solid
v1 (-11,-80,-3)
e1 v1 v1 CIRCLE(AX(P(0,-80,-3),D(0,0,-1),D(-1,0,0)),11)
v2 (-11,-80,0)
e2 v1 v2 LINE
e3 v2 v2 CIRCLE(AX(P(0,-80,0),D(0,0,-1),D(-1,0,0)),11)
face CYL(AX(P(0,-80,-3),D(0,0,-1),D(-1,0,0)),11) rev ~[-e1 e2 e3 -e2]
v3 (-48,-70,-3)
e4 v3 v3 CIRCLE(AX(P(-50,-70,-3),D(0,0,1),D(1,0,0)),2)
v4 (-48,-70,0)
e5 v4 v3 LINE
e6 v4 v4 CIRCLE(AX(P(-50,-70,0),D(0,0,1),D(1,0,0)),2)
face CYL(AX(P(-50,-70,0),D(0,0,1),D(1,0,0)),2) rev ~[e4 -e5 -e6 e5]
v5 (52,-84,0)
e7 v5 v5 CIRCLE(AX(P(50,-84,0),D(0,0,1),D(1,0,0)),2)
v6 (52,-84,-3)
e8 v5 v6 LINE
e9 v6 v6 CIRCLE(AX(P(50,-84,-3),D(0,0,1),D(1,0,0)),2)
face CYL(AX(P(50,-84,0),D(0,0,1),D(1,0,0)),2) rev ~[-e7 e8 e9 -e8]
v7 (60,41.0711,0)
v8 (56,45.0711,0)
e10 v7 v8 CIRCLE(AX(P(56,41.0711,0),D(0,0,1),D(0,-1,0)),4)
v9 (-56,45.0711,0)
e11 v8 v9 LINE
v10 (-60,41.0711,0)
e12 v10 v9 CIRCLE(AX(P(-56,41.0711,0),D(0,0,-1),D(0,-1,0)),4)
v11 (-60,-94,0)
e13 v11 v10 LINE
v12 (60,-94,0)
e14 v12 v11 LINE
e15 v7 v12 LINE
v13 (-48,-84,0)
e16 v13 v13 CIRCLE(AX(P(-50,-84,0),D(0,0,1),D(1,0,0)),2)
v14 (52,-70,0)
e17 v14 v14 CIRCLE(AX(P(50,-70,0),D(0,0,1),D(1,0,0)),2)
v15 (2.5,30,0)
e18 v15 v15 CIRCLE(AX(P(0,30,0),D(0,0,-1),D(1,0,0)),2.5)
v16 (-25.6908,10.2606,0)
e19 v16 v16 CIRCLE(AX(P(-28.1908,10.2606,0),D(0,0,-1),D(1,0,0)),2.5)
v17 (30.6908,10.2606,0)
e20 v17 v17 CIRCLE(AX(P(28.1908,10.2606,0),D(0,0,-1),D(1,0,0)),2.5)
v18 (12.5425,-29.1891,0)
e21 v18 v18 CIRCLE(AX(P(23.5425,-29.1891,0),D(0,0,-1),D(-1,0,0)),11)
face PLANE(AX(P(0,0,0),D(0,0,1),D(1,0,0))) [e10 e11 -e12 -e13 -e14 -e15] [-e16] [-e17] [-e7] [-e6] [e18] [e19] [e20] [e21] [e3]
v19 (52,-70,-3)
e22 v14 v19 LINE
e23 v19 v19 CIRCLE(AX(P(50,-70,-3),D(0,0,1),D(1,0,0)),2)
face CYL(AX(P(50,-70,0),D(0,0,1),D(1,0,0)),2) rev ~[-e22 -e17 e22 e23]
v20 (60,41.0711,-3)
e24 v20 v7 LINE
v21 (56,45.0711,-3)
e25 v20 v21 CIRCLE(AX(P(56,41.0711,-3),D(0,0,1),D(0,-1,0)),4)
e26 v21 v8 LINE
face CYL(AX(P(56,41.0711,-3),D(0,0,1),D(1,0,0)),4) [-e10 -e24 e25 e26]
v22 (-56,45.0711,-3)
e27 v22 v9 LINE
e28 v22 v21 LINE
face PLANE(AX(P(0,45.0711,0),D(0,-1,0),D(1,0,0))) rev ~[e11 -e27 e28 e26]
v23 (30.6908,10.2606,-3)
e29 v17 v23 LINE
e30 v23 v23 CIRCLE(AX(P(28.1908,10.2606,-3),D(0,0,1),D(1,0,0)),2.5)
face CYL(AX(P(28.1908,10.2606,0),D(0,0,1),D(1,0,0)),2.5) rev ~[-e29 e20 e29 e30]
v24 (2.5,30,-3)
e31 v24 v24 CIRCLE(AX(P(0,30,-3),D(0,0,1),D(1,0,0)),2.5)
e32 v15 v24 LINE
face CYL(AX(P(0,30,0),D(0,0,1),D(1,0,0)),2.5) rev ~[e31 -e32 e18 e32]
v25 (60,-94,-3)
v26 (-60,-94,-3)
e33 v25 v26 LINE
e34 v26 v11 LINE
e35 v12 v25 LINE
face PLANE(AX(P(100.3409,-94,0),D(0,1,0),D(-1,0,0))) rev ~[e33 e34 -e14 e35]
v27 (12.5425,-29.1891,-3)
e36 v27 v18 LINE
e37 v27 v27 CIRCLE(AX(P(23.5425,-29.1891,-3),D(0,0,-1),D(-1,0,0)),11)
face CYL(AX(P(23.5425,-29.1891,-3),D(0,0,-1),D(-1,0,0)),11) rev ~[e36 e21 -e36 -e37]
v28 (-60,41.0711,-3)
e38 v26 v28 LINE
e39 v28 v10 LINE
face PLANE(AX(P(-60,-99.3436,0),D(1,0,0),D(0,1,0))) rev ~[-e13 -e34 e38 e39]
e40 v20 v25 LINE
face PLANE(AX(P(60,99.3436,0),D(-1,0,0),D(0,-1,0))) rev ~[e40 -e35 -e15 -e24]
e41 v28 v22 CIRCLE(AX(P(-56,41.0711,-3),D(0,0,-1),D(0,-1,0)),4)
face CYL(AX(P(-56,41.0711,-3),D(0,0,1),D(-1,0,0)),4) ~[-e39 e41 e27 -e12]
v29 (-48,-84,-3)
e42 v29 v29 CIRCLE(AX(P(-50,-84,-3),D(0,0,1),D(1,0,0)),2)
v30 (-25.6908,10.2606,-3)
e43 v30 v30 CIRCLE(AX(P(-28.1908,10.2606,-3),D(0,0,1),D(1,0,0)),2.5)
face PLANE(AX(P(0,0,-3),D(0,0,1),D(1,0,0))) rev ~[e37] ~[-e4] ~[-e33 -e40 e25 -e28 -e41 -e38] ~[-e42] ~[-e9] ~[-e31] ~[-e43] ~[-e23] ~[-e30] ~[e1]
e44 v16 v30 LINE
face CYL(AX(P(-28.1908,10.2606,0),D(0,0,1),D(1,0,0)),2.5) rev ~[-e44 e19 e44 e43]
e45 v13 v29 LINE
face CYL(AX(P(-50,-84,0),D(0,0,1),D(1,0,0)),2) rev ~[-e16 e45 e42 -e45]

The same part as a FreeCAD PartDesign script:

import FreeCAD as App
import Part
import Sketcher


def edges_at(feature, points):
    """Names of the edges that pass closest to the given points."""
    edges = feature.Shape.Edges
    near = lambda p: min(range(len(edges)), key=lambda i: edges[i].distToShape(Part.Vertex(*p))[0])
    return sorted({f"Edge{near(p) + 1}" for p in points})

doc = App.newDocument("Part")
body = doc.addObject("PartDesign::Body", "Body")

sketch1 = body.newObject("Sketcher::SketchObject", "Sketch")
sketch1.AttachmentSupport = (doc.getObject("XY_Plane"), [""])
sketch1.MapMode = "FlatFace"
sketch1.addGeometry(Part.LineSegment(App.Vector(-60, -99, 0), App.Vector(60, -99, 0)), False)
sketch1.addGeometry(Part.LineSegment(App.Vector(60, -99, 0), App.Vector(60, 99, 0)), False)
sketch1.addGeometry(Part.LineSegment(App.Vector(60, 99, 0), App.Vector(-60, 99, 0)), False)
sketch1.addGeometry(Part.LineSegment(App.Vector(-60, 99, 0), App.Vector(-60, -99, 0)), False)
sketch1.addConstraint(Sketcher.Constraint("Coincident", 0, 2, 1, 1))
sketch1.addConstraint(Sketcher.Constraint("Coincident", 1, 2, 2, 1))
sketch1.addConstraint(Sketcher.Constraint("Coincident", 2, 2, 3, 1))
sketch1.addConstraint(Sketcher.Constraint("Coincident", 3, 2, 0, 1))
sketch1.addConstraint(Sketcher.Constraint("Horizontal", 0))
sketch1.addConstraint(Sketcher.Constraint("Vertical", 1))
sketch1.addConstraint(Sketcher.Constraint("Horizontal", 2))
sketch1.addConstraint(Sketcher.Constraint("Vertical", 3))
sketch1.addConstraint(Sketcher.Constraint("Symmetric", 0, 2, 2, 2, -1, 1))
sketch1.addConstraint(Sketcher.Constraint("DistanceX", 0, 1, 0, 2, 120.0))
sketch1.addConstraint(Sketcher.Constraint("DistanceY", 1, 1, 1, 2, 198.6872))
pad1 = body.newObject("PartDesign::Pad", "Pad")
pad1.Profile = sketch1
pad1.Length = 3
pad1.Reversed = True

sketch2 = body.newObject("Sketcher::SketchObject", "Sketch001")
sketch2.AttachmentSupport = (doc.getObject("XY_Plane"), [""])
sketch2.MapMode = "FlatFace"
sketch2.addGeometry(Part.LineSegment(App.Vector(-74, 45, 0), App.Vector(108, 45, 0)), False)
sketch2.addGeometry(Part.LineSegment(App.Vector(108, 45, 0), App.Vector(108, 129, 0)), False)
sketch2.addGeometry(Part.LineSegment(App.Vector(108, 129, 0), App.Vector(-74, 129, 0)), False)
sketch2.addGeometry(Part.LineSegment(App.Vector(-74, 129, 0), App.Vector(-74, 45, 0)), False)
sketch2.addConstraint(Sketcher.Constraint("Coincident", 0, 2, 1, 1))
sketch2.addConstraint(Sketcher.Constraint("Coincident", 1, 2, 2, 1))
sketch2.addConstraint(Sketcher.Constraint("Coincident", 2, 2, 3, 1))
sketch2.addConstraint(Sketcher.Constraint("Coincident", 3, 2, 0, 1))
sketch2.addConstraint(Sketcher.Constraint("Horizontal", 0))
sketch2.addConstraint(Sketcher.Constraint("Vertical", 1))
sketch2.addConstraint(Sketcher.Constraint("Horizontal", 2))
sketch2.addConstraint(Sketcher.Constraint("Vertical", 3))
sketch2.addConstraint(Sketcher.Constraint("DistanceX", 0, 1, 0, 2, 182.548))
sketch2.addConstraint(Sketcher.Constraint("DistanceY", 1, 1, 1, 2, 84.3443))
sketch2.addConstraint(Sketcher.Constraint("DistanceY", -1, 1, 0, 2, 45.071))
sketch2.addConstraint(Sketcher.Constraint("DistanceX", -1, 1, 0, 2, 108.1656))
pocket1 = body.newObject("PartDesign::Pocket", "Pocket")
pocket1.Profile = sketch2
pocket1.Length = 10
doc.recompute()

fillet = body.newObject("PartDesign::Fillet", "Fillet")
fillet.Base = (pocket1, edges_at(pocket1, [
    (-60, 45.071, -1.5),
    (60, 45.071, -1.5),
    (-60, -99.344, -1.5),
    (60, -99.344, -1.5),
]))
fillet.Radius = 4

sketch3 = body.newObject("Sketcher::SketchObject", "Sketch002")
sketch3.AttachmentSupport = (doc.getObject("XY_Plane"), [""])
sketch3.MapMode = "FlatFace"
sketch3.addGeometry(Part.Circle(App.Vector(23.5, -29.2, 0), App.Vector(0, 0, 1), 4), False)
sketch3.addGeometry(Part.Circle(App.Vector(0, -80, 0), App.Vector(0, 0, 1), 4), False)
sketch3.addConstraint(Sketcher.Constraint("Equal", 0, 1))
sketch3.addConstraint(Sketcher.Constraint("PointOnObject", 1, 3, -2))
sketch3.addConstraint(Sketcher.Constraint("Diameter", 0, 8.0))
sketch3.addConstraint(Sketcher.Constraint("DistanceY", 1, 3, -1, 1, 80.0))
sketch3.addConstraint(Sketcher.Constraint("DistanceY", 0, 3, -1, 1, 29.189))
sketch3.addConstraint(Sketcher.Constraint("DistanceX", -1, 1, 0, 3, 23.5425))
pocket2 = body.newObject("PartDesign::Pocket", "Pocket001")
pocket2.Profile = sketch3
pocket2.Length = 10

sketch4 = body.newObject("Sketcher::SketchObject", "Sketch003")
sketch4.AttachmentSupport = (doc.getObject("XY_Plane"), [""])
sketch4.MapMode = "FlatFace"
sketch4.addGeometry(Part.LineSegment(App.Vector(-266, -94, 0), App.Vector(-266, -159, 0)), False)
sketch4.addGeometry(Part.LineSegment(App.Vector(-266, -159, 0), App.Vector(100, -159, 0)), False)
sketch4.addGeometry(Part.LineSegment(App.Vector(100, -159, 0), App.Vector(100, -94, 0)), False)
sketch4.addGeometry(Part.LineSegment(App.Vector(100, -94, 0), App.Vector(-266, -94, 0)), False)
sketch4.addConstraint(Sketcher.Constraint("Coincident", 0, 2, 1, 1))
sketch4.addConstraint(Sketcher.Constraint("Coincident", 1, 2, 2, 1))
sketch4.addConstraint(Sketcher.Constraint("Coincident", 2, 2, 3, 1))
sketch4.addConstraint(Sketcher.Constraint("Coincident", 3, 2, 0, 1))
sketch4.addConstraint(Sketcher.Constraint("Vertical", 0))
sketch4.addConstraint(Sketcher.Constraint("Horizontal", 1))
sketch4.addConstraint(Sketcher.Constraint("Vertical", 2))
sketch4.addConstraint(Sketcher.Constraint("Horizontal", 3))
sketch4.addConstraint(Sketcher.Constraint("DistanceY", 2, 2, -1, 1, 94.0))
sketch4.addConstraint(Sketcher.Constraint("DistanceX", 1, 1, 1, 2, 366.04))
sketch4.addConstraint(Sketcher.Constraint("DistanceY", 0, 2, 0, 1, 64.784))
sketch4.addConstraint(Sketcher.Constraint("DistanceX", -1, 1, 1, 2, 100.341))
pocket3 = body.newObject("PartDesign::Pocket", "Pocket002")
pocket3.Profile = sketch4
pocket3.Length = 10

sketch5 = body.newObject("Sketcher::SketchObject", "Sketch004")
sketch5.AttachmentSupport = (doc.getObject("XY_Plane"), [""])
sketch5.MapMode = "FlatFace"
sketch5.addGeometry(Part.Circle(App.Vector(28.2, 10.3, 0), App.Vector(0, 0, 1), 2.5), False)
sketch5.addGeometry(Part.Circle(App.Vector(-28.2, 10.3, 0), App.Vector(0, 0, 1), 2.5), False)
sketch5.addGeometry(Part.Circle(App.Vector(0, 30, 0), App.Vector(0, 0, 1), 2.5), False)
sketch5.addConstraint(Sketcher.Constraint("Equal", 0, 1))
sketch5.addConstraint(Sketcher.Constraint("Equal", 1, 2))
sketch5.addConstraint(Sketcher.Constraint("Symmetric", 0, 3, 1, 3, -2))
sketch5.addConstraint(Sketcher.Constraint("PointOnObject", 2, 3, -2))
sketch5.addConstraint(Sketcher.Constraint("Diameter", 0, 5.0))
sketch5.addConstraint(Sketcher.Constraint("DistanceY", -1, 1, 2, 3, 30.0))
sketch5.addConstraint(Sketcher.Constraint("DistanceX", -1, 1, 0, 3, 28.1908))
sketch5.addConstraint(Sketcher.Constraint("DistanceY", -1, 1, 0, 3, 10.2606))
pocket4 = body.newObject("PartDesign::Pocket", "Pocket003")
pocket4.Profile = sketch5
pocket4.Length = 10

sketch6 = body.newObject("Sketcher::SketchObject", "Sketch005")
sketch6.AttachmentSupport = (doc.getObject("XY_Plane"), [""])
sketch6.MapMode = "FlatFace"
sketch6.addGeometry(Part.Circle(App.Vector(-50, -84, 0), App.Vector(0, 0, 1), 2), False)
sketch6.addGeometry(Part.Circle(App.Vector(50, -84, 0), App.Vector(0, 0, 1), 2), False)
sketch6.addGeometry(Part.Circle(App.Vector(-50, -70, 0), App.Vector(0, 0, 1), 2), False)
sketch6.addGeometry(Part.Circle(App.Vector(50, -70, 0), App.Vector(0, 0, 1), 2), False)
sketch6.addConstraint(Sketcher.Constraint("Equal", 0, 1))
sketch6.addConstraint(Sketcher.Constraint("Equal", 1, 2))
sketch6.addConstraint(Sketcher.Constraint("Equal", 2, 3))
sketch6.addConstraint(Sketcher.Constraint("Symmetric", 0, 3, 1, 3, -2))
sketch6.addConstraint(Sketcher.Constraint("Symmetric", 2, 3, 3, 3, -2))
sketch6.addConstraint(Sketcher.Constraint("Vertical", 0, 3, 2, 3))
sketch6.addConstraint(Sketcher.Constraint("Diameter", 0, 4.0))
sketch6.addConstraint(Sketcher.Constraint("DistanceX", 0, 3, -1, 1, 50.0))
sketch6.addConstraint(Sketcher.Constraint("DistanceY", 0, 3, -1, 1, 84.0))
sketch6.addConstraint(Sketcher.Constraint("DistanceY", 2, 3, -1, 1, 70.0))
pocket5 = body.newObject("PartDesign::Pocket", "Pocket004")
pocket5.Profile = sketch6
pocket5.Length = 10

sketch7 = body.newObject("Sketcher::SketchObject", "Sketch006")
sketch7.AttachmentSupport = (doc.getObject("XY_Plane"), [""])
sketch7.MapMode = "FlatFace"
sketch7.AttachmentOffset = App.Placement(App.Vector(0, 0, -3), App.Rotation())
sketch7.addGeometry(Part.Circle(App.Vector(23.5, -29.2, 0), App.Vector(0, 0, 1), 11), False)
sketch7.addGeometry(Part.Circle(App.Vector(23.5, -29.2, 0), App.Vector(0, 0, 1), 4), False)
sketch7.addGeometry(Part.Circle(App.Vector(0, -80, 0), App.Vector(0, 0, 1), 11), False)
sketch7.addGeometry(Part.Circle(App.Vector(0, -80, 0), App.Vector(0, 0, 1), 4), False)
sketch7.addConstraint(Sketcher.Constraint("Coincident", 1, 3, 0, 3))
sketch7.addConstraint(Sketcher.Constraint("Coincident", 3, 3, 2, 3))
sketch7.addConstraint(Sketcher.Constraint("Equal", 0, 2))
sketch7.addConstraint(Sketcher.Constraint("Equal", 1, 3))
sketch7.addConstraint(Sketcher.Constraint("PointOnObject", 2, 3, -2))
sketch7.addConstraint(Sketcher.Constraint("Diameter", 0, 22.0))
sketch7.addConstraint(Sketcher.Constraint("Diameter", 1, 8.0))
sketch7.addConstraint(Sketcher.Constraint("DistanceY", 2, 3, -1, 1, 80.0))
sketch7.addConstraint(Sketcher.Constraint("DistanceY", 0, 3, -1, 1, 29.189))
sketch7.addConstraint(Sketcher.Constraint("DistanceX", -1, 1, 0, 3, 23.5425))
pocket6 = body.newObject("PartDesign::Pocket", "Pocket005")
pocket6.Profile = sketch7
pocket6.Length = 10
pocket6.Reversed = True

doc.recompute()
